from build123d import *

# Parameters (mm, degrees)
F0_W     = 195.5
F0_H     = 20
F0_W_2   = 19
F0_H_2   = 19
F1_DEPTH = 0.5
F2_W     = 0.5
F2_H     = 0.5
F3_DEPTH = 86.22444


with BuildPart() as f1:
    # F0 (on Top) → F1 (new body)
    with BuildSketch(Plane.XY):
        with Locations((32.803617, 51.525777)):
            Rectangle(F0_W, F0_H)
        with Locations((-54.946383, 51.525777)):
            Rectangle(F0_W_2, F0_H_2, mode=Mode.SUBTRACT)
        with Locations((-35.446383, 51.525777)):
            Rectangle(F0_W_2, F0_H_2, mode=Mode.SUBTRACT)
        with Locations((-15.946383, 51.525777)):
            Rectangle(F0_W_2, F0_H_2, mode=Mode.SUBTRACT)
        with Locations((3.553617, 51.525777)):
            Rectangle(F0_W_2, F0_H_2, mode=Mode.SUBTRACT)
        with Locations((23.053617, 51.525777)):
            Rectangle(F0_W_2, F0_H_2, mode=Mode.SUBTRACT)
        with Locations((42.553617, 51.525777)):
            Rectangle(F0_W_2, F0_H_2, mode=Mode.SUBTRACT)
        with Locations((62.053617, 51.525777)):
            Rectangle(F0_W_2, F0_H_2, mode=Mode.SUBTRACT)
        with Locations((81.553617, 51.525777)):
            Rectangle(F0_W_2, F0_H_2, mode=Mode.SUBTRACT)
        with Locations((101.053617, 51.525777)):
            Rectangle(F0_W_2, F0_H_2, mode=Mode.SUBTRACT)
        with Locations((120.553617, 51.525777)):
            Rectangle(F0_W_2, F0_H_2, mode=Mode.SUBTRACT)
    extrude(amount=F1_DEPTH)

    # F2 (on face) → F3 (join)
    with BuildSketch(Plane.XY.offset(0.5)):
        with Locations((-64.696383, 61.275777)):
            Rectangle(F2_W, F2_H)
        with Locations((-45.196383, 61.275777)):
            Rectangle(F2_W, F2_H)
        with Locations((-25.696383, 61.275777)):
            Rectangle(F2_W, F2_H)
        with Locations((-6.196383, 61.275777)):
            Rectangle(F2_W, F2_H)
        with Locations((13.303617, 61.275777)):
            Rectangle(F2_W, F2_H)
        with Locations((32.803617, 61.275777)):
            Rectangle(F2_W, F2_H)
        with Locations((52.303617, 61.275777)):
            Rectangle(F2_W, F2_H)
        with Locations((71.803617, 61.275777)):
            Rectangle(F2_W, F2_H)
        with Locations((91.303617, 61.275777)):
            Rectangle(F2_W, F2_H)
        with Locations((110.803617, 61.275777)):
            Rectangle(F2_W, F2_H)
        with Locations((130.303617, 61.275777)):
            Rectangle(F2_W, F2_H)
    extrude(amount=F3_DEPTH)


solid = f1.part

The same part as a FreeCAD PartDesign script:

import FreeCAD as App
import Part
import Sketcher
Q = App.Units.Quantity

doc = App.newDocument("Part")
params = doc.addObject("Spreadsheet::Sheet", "Params")
for row, (alias, value) in enumerate([
    ("sketch1_width", "19 mm"),
    ("sketch1_height", "20 mm"),
    ("sketch1_width2", "195.5 mm"),
    ("pad1_length", "0.5 mm"),
    ("sketch2_width", "0.5 mm"),
    ("pad2_length", "86.22444 mm"),
], start=1):
    params.set(f"A{row}", alias)
    params.set(f"B{row}", "=" + value)
    params.setAlias(f"B{row}", alias)

body = doc.addObject("PartDesign::Body", "Body")

sketch1 = doc.addObject("Sketcher::SketchObject", "Sketch")
body.addObject(sketch1)
sketch1.AttachmentSupport = (doc.XY_Plane, [""])
sketch1.MapMode = "FlatFace"
sketch1.addGeometry([
    Part.LineSegment(App.Vector(-64.946383, 61.525777, 0), App.Vector(-64.946383, 41.525777, 0)),
    Part.LineSegment(App.Vector(-64.946383, 41.525777, 0), App.Vector(130.553617, 41.525777, 0)),
    Part.LineSegment(App.Vector(130.553617, 41.525777, 0), App.Vector(130.553617, 61.525777, 0)),
    Part.LineSegment(App.Vector(130.553617, 61.525777, 0), App.Vector(-64.946383, 61.525777, 0)),
    Part.LineSegment(App.Vector(-45.446383, 42.025777, 0), App.Vector(-64.446383, 42.025777, 0)),
    Part.LineSegment(App.Vector(-64.446383, 42.025777, 0), App.Vector(-64.446383, 61.025777, 0)),
    Part.LineSegment(App.Vector(-64.446383, 61.025777, 0), App.Vector(-45.446383, 61.025777, 0)),
    Part.LineSegment(App.Vector(-45.446383, 61.025777, 0), App.Vector(-45.446383, 42.025777, 0)),
    Part.LineSegment(App.Vector(-25.946383, 42.025777, 0), App.Vector(-44.946383, 42.025777, 0)),
    Part.LineSegment(App.Vector(-44.946383, 42.025777, 0), App.Vector(-44.946383, 61.025777, 0)),
    Part.LineSegment(App.Vector(-44.946383, 61.025777, 0), App.Vector(-25.946383, 61.025777, 0)),
    Part.LineSegment(App.Vector(-25.946383, 61.025777, 0), App.Vector(-25.946383, 42.025777, 0)),
    Part.LineSegment(App.Vector(-6.446383, 42.025777, 0), App.Vector(-25.446383, 42.025777, 0)),
    Part.LineSegment(App.Vector(-25.446383, 42.025777, 0), App.Vector(-25.446383, 61.025777, 0)),
    Part.LineSegment(App.Vector(-25.446383, 61.025777, 0), App.Vector(-6.446383, 61.025777, 0)),
    Part.LineSegment(App.Vector(-6.446383, 61.025777, 0), App.Vector(-6.446383, 42.025777, 0)),
    Part.LineSegment(App.Vector(13.053617, 42.025777, 0), App.Vector(-5.946383, 42.025777, 0)),
    Part.LineSegment(App.Vector(-5.946383, 42.025777, 0), App.Vector(-5.946383, 61.025777, 0)),
    Part.LineSegment(App.Vector(-5.946383, 61.025777, 0), App.Vector(13.053617, 61.025777, 0)),
    Part.LineSegment(App.Vector(13.053617, 61.025777, 0), App.Vector(13.053617, 42.025777, 0)),
    Part.LineSegment(App.Vector(32.553617, 42.025777, 0), App.Vector(13.553617, 42.025777, 0)),
    Part.LineSegment(App.Vector(13.553617, 42.025777, 0), App.Vector(13.553617, 61.025777, 0)),
    Part.LineSegment(App.Vector(13.553617, 61.025777, 0), App.Vector(32.553617, 61.025777, 0)),
    Part.LineSegment(App.Vector(32.553617, 61.025777, 0), App.Vector(32.553617, 42.025777, 0)),
    Part.LineSegment(App.Vector(52.053617, 42.025777, 0), App.Vector(33.053617, 42.025777, 0)),
    Part.LineSegment(App.Vector(33.053617, 42.025777, 0), App.Vector(33.053617, 61.025777, 0)),
    Part.LineSegment(App.Vector(33.053617, 61.025777, 0), App.Vector(52.053617, 61.025777, 0)),
    Part.LineSegment(App.Vector(52.053617, 61.025777, 0), App.Vector(52.053617, 42.025777, 0)),
    Part.LineSegment(App.Vector(71.553617, 42.025777, 0), App.Vector(52.553617, 42.025777, 0)),
    Part.LineSegment(App.Vector(52.553617, 42.025777, 0), App.Vector(52.553617, 61.025777, 0)),
    Part.LineSegment(App.Vector(52.553617, 61.025777, 0), App.Vector(71.553617, 61.025777, 0)),
    Part.LineSegment(App.Vector(71.553617, 61.025777, 0), App.Vector(71.553617, 42.025777, 0)),
    Part.LineSegment(App.Vector(91.053617, 42.025777, 0), App.Vector(72.053617, 42.025777, 0)),
    Part.LineSegment(App.Vector(72.053617, 42.025777, 0), App.Vector(72.053617, 61.025777, 0)),
    Part.LineSegment(App.Vector(72.053617, 61.025777, 0), App.Vector(91.053617, 61.025777, 0)),
    Part.LineSegment(App.Vector(91.053617, 61.025777, 0), App.Vector(91.053617, 42.025777, 0)),
    Part.LineSegment(App.Vector(110.553617, 42.025777, 0), App.Vector(91.553617, 42.025777, 0)),
    Part.LineSegment(App.Vector(91.553617, 42.025777, 0), App.Vector(91.553617, 61.025777, 0)),
    Part.LineSegment(App.Vector(91.553617, 61.025777, 0), App.Vector(110.553617, 61.025777, 0)),
    Part.LineSegment(App.Vector(110.553617, 61.025777, 0), App.Vector(110.553617, 42.025777, 0)),
    Part.LineSegment(App.Vector(130.053617, 42.025777, 0), App.Vector(111.053617, 42.025777, 0)),
    Part.LineSegment(App.Vector(111.053617, 42.025777, 0), App.Vector(111.053617, 61.025777, 0)),
    Part.LineSegment(App.Vector(111.053617, 61.025777, 0), App.Vector(130.053617, 61.025777, 0)),
    Part.LineSegment(App.Vector(130.053617, 61.025777, 0), App.Vector(130.053617, 42.025777, 0)),
], False)
sketch1.addConstraint([
    Sketcher.Constraint("Coincident", 0, 2, 1, 1),
    Sketcher.Constraint("Coincident", 1, 2, 2, 1),
    Sketcher.Constraint("Coincident", 2, 2, 3, 1),
    Sketcher.Constraint("Coincident", 3, 2, 0, 1),
    Sketcher.Constraint("Coincident", 4, 2, 5, 1),
    Sketcher.Constraint("Coincident", 5, 2, 6, 1),
    Sketcher.Constraint("Coincident", 6, 2, 7, 1),
    Sketcher.Constraint("Coincident", 7, 2, 4, 1),
    Sketcher.Constraint("Coincident", 8, 2, 9, 1),
    Sketcher.Constraint("Coincident", 9, 2, 10, 1),
    Sketcher.Constraint("Coincident", 10, 2, 11, 1),
    Sketcher.Constraint("Coincident", 11, 2, 8, 1),
    Sketcher.Constraint("Coincident", 12, 2, 13, 1),
    Sketcher.Constraint("Coincident", 13, 2, 14, 1),
    Sketcher.Constraint("Coincident", 14, 2, 15, 1),
    Sketcher.Constraint("Coincident", 15, 2, 12, 1),
    Sketcher.Constraint("Coincident", 16, 2, 17, 1),
    Sketcher.Constraint("Coincident", 17, 2, 18, 1),
    Sketcher.Constraint("Coincident", 18, 2, 19, 1),
    Sketcher.Constraint("Coincident", 19, 2, 16, 1),
    Sketcher.Constraint("Coincident", 20, 2, 21, 1),
    Sketcher.Constraint("Coincident", 21, 2, 22, 1),
    Sketcher.Constraint("Coincident", 22, 2, 23, 1),
    Sketcher.Constraint("Coincident", 23, 2, 20, 1),
    Sketcher.Constraint("Coincident", 24, 2, 25, 1),
    Sketcher.Constraint("Coincident", 25, 2, 26, 1),
    Sketcher.Constraint("Coincident", 26, 2, 27, 1),
    Sketcher.Constraint("Coincident", 27, 2, 24, 1),
    Sketcher.Constraint("Coincident", 28, 2, 29, 1),
    Sketcher.Constraint("Coincident", 29, 2, 30, 1),
    Sketcher.Constraint("Coincident", 30, 2, 31, 1),
    Sketcher.Constraint("Coincident", 31, 2, 28, 1),
    Sketcher.Constraint("Coincident", 32, 2, 33, 1),
    Sketcher.Constraint("Coincident", 33, 2, 34, 1),
    Sketcher.Constraint("Coincident", 34, 2, 35, 1),
    Sketcher.Constraint("Coincident", 35, 2, 32, 1),
    Sketcher.Constraint("Coincident", 36, 2, 37, 1),
    Sketcher.Constraint("Coincident", 37, 2, 38, 1),
    Sketcher.Constraint("Coincident", 38, 2, 39, 1),
    Sketcher.Constraint("Coincident", 39, 2, 36, 1),
    Sketcher.Constraint("Coincident", 40, 2, 41, 1),
    Sketcher.Constraint("Coincident", 41, 2, 42, 1),
    Sketcher.Constraint("Coincident", 42, 2, 43, 1),
    Sketcher.Constraint("Coincident", 43, 2, 40, 1),
    Sketcher.Constraint("Vertical", 0),
    Sketcher.Constraint("Horizontal", 1),
    Sketcher.Constraint("Vertical", 2),
    Sketcher.Constraint("Horizontal", 3),
    Sketcher.Constraint("Horizontal", 4),
    Sketcher.Constraint("Vertical", 5),
    Sketcher.Constraint("Horizontal", 6),
    Sketcher.Constraint("Vertical", 7),
    Sketcher.Constraint("Horizontal", 8),
    Sketcher.Constraint("Vertical", 9),
    Sketcher.Constraint("Horizontal", 10),
    Sketcher.Constraint("Vertical", 11),
    Sketcher.Constraint("Horizontal", 12),
    Sketcher.Constraint("Vertical", 13),
    Sketcher.Constraint("Horizontal", 14),
    Sketcher.Constraint("Vertical", 15),
    Sketcher.Constraint("Horizontal", 16),
    Sketcher.Constraint("Vertical", 17),
    Sketcher.Constraint("Horizontal", 18),
    Sketcher.Constraint("Vertical", 19),
    Sketcher.Constraint("Horizontal", 20),
    Sketcher.Constraint("Vertical", 21),
    Sketcher.Constraint("Horizontal", 22),
    Sketcher.Constraint("Vertical", 23),
    Sketcher.Constraint("Horizontal", 24),
    Sketcher.Constraint("Vertical", 25),
    Sketcher.Constraint("Horizontal", 26),
    Sketcher.Constraint("Vertical", 27),
    Sketcher.Constraint("Horizontal", 28),
    Sketcher.Constraint("Vertical", 29),
    Sketcher.Constraint("Horizontal", 30),
    Sketcher.Constraint("Vertical", 31),
    Sketcher.Constraint("Horizontal", 32),
    Sketcher.Constraint("Vertical", 33),
    Sketcher.Constraint("Horizontal", 34),
    Sketcher.Constraint("Vertical", 35),
    Sketcher.Constraint("Horizontal", 36),
    Sketcher.Constraint("Vertical", 37),
    Sketcher.Constraint("Horizontal", 38),
    Sketcher.Constraint("Vertical", 39),
    Sketcher.Constraint("Horizontal", 40),
    Sketcher.Constraint("Vertical", 41),
    Sketcher.Constraint("Horizontal", 42),
    Sketcher.Constraint("Vertical", 43),
    Sketcher.Constraint("Horizontal", 7, 2, 8, 2),
    Sketcher.Constraint("Horizontal", 6, 2, 9, 2),
    Sketcher.Constraint("Horizontal", 11, 2, 12, 2),
    Sketcher.Constraint("Horizontal", 10, 2, 13, 2),
    Sketcher.Constraint("Horizontal", 15, 2, 16, 2),
    Sketcher.Constraint("Horizontal", 14, 2, 17, 2),
    Sketcher.Constraint("Horizontal", 19, 2, 20, 2),
    Sketcher.Constraint("Horizontal", 18, 2, 21, 2),
    Sketcher.Constraint("Horizontal", 23, 2, 24, 2),
    Sketcher.Constraint("Horizontal", 22, 2, 25, 2),
    Sketcher.Constraint("Horizontal", 27, 2, 28, 2),
    Sketcher.Constraint("Horizontal", 26, 2, 29, 2),
    Sketcher.Constraint("Horizontal", 31, 2, 32, 2),
    Sketcher.Constraint("Horizontal", 30, 2, 33, 2),
    Sketcher.Constraint("Horizontal", 35, 2, 36, 2),
    Sketcher.Constraint("Horizontal", 34, 2, 37, 2),
    Sketcher.Constraint("Horizontal", 39, 2, 40, 2),
    Sketcher.Constraint("Horizontal", 38, 2, 41, 2),
    Sketcher.Constraint("Equal", 6, 8),
    Sketcher.Constraint("Equal", 10, 12),
    Sketcher.Constraint("Equal", 14, 16),
    Sketcher.Constraint("Equal", 18, 20),
    Sketcher.Constraint("Equal", 22, 24),
    Sketcher.Constraint("Equal", 26, 28),
    Sketcher.Constraint("Equal", 30, 32),
    Sketcher.Constraint("Equal", 34, 36),
    Sketcher.Constraint("Equal", 38, 40),
    Sketcher.Constraint("Equal", 42, 5),
    Sketcher.Constraint("DistanceX", 4, 2, 4, 1, Q("19 mm")),
    Sketcher.Constraint("DistanceY", 0, 2, 0, 1, Q("20 mm")),
    Sketcher.Constraint("DistanceX", 1, 1, 1, 2, Q("195.5 mm")),
    Sketcher.Constraint("DistanceX", 4, 2, 1, 2, Q("195 mm")),
    Sketcher.Constraint("DistanceX", 0, 2, 8, 2, Q("20 mm")),
    Sketcher.Constraint("DistanceX", 7, 2, 12, 2, Q("20 mm")),
    Sketcher.Constraint("DistanceX", 11, 2, 16, 2, Q("20 mm")),
    Sketcher.Constraint("DistanceX", 15, 2, 20, 2, Q("20 mm")),
    Sketcher.Constraint("DistanceX", 19, 2, 24, 2, Q("20 mm")),
    Sketcher.Constraint("DistanceX", 23, 2, 28, 2, Q("20 mm")),
    Sketcher.Constraint("DistanceX", 27, 2, 32, 2, Q("20 mm")),
    Sketcher.Constraint("DistanceX", 31, 2, 36, 2, Q("20 mm")),
    Sketcher.Constraint("DistanceX", 35, 2, 40, 2, Q("20 mm")),
    Sketcher.Constraint("DistanceY", 0, 2, 4, 2, Q("0.5 mm")),
    Sketcher.Constraint("DistanceX", 0, 2, -1, 1, Q("64.946383 mm")),
    Sketcher.Constraint("DistanceY", -1, 1, 0, 2, Q("41.525777 mm")),
])
sketch1.setExpression("Constraints[116]", "Params.sketch1_width")
sketch1.setExpression("Constraints[117]", "Params.sketch1_height")
sketch1.setExpression("Constraints[118]", "Params.sketch1_width2")
pad1 = doc.addObject("PartDesign::Pad", "Pad")
body.addObject(pad1)
pad1.Profile = sketch1
pad1.setExpression("Length", "Params.pad1_length")

sketch2 = doc.addObject("Sketcher::SketchObject", "Sketch001")
body.addObject(sketch2)
sketch2.AttachmentSupport = (doc.XY_Plane, [""])
sketch2.MapMode = "FlatFace"
sketch2.AttachmentOffset = App.Placement(App.Vector(0, 0, 0.5), App.Rotation())
sketch2.addGeometry([
    Part.LineSegment(App.Vector(-64.946383, 61.525777, 0), App.Vector(-64.946383, 61.025777, 0)),
    Part.LineSegment(App.Vector(-64.946383, 61.025777, 0), App.Vector(-64.446383, 61.025777, 0)),
    Part.LineSegment(App.Vector(-64.446383, 61.025777, 0), App.Vector(-64.446383, 61.525777, 0)),
    Part.LineSegment(App.Vector(-64.446383, 61.525777, 0), App.Vector(-64.946383, 61.525777, 0)),
    Part.LineSegment(App.Vector(-45.446383, 61.525777, 0), App.Vector(-45.446383, 61.025777, 0)),
    Part.LineSegment(App.Vector(-45.446383, 61.025777, 0), App.Vector(-44.946383, 61.025777, 0)),
    Part.LineSegment(App.Vector(-44.946383, 61.025777, 0), App.Vector(-44.946383, 61.525777, 0)),
    Part.LineSegment(App.Vector(-44.946383, 61.525777, 0), App.Vector(-45.446383, 61.525777, 0)),
    Part.LineSegment(App.Vector(-25.946383, 61.525777, 0), App.Vector(-25.946383, 61.025777, 0)),
    Part.LineSegment(App.Vector(-25.946383, 61.025777, 0), App.Vector(-25.446383, 61.025777, 0)),
    Part.LineSegment(App.Vector(-25.446383, 61.025777, 0), App.Vector(-25.446383, 61.525777, 0)),
    Part.LineSegment(App.Vector(-25.446383, 61.525777, 0), App.Vector(-25.946383, 61.525777, 0)),
    Part.LineSegment(App.Vector(-6.446383, 61.525777, 0), App.Vector(-6.446383, 61.025777, 0)),
    Part.LineSegment(App.Vector(-6.446383, 61.025777, 0), App.Vector(-5.946383, 61.025777, 0)),
    Part.LineSegment(App.Vector(-5.946383, 61.025777, 0), App.Vector(-5.946383, 61.525777, 0)),
    Part.LineSegment(App.Vector(-5.946383, 61.525777, 0), App.Vector(-6.446383, 61.525777, 0)),
    Part.LineSegment(App.Vector(13.053617, 61.525777, 0), App.Vector(13.053617, 61.025777, 0)),
    Part.LineSegment(App.Vector(13.053617, 61.025777, 0), App.Vector(13.553617, 61.025777, 0)),
    Part.LineSegment(App.Vector(13.553617, 61.025777, 0), App.Vector(13.553617, 61.525777, 0)),
    Part.LineSegment(App.Vector(13.553617, 61.525777, 0), App.Vector(13.053617, 61.525777, 0)),
    Part.LineSegment(App.Vector(32.553617, 61.525777, 0), App.Vector(32.553617, 61.025777, 0)),
    Part.LineSegment(App.Vector(32.553617, 61.025777, 0), App.Vector(33.053617, 61.025777, 0)),
    Part.LineSegment(App.Vector(33.053617, 61.025777, 0), App.Vector(33.053617, 61.525777, 0)),
    Part.LineSegment(App.Vector(33.053617, 61.525777, 0), App.Vector(32.553617, 61.525777, 0)),
    Part.LineSegment(App.Vector(52.053617, 61.525777, 0), App.Vector(52.053617, 61.025777, 0)),
    Part.LineSegment(App.Vector(52.053617, 61.025777, 0), App.Vector(52.553617, 61.025777, 0)),
    Part.LineSegment(App.Vector(52.553617, 61.025777, 0), App.Vector(52.553617, 61.525777, 0)),
    Part.LineSegment(App.Vector(52.553617, 61.525777, 0), App.Vector(52.053617, 61.525777, 0)),
    Part.LineSegment(App.Vector(71.553617, 61.525777, 0), App.Vector(71.553617, 61.025777, 0)),
    Part.LineSegment(App.Vector(71.553617, 61.025777, 0), App.Vector(72.053617, 61.025777, 0)),
    Part.LineSegment(App.Vector(72.053617, 61.025777, 0), App.Vector(72.053617, 61.525777, 0)),
    Part.LineSegment(App.Vector(72.053617, 61.525777, 0), App.Vector(71.553617, 61.525777, 0)),
    Part.LineSegment(App.Vector(91.053617, 61.525777, 0), App.Vector(91.053617, 61.025777, 0)),
    Part.LineSegment(App.Vector(91.053617, 61.025777, 0), App.Vector(91.553617, 61.025777, 0)),
    Part.LineSegment(App.Vector(91.553617, 61.025777, 0), App.Vector(91.553617, 61.525777, 0)),
    Part.LineSegment(App.Vector(91.553617, 61.525777, 0), App.Vector(91.053617, 61.525777, 0)),
    Part.LineSegment(App.Vector(110.553617, 61.525777, 0), App.Vector(110.553617, 61.025777, 0)),
    Part.LineSegment(App.Vector(110.553617, 61.025777, 0), App.Vector(111.053617, 61.025777, 0)),
    Part.LineSegment(App.Vector(111.053617, 61.025777, 0), App.Vector(111.053617, 61.525777, 0)),
    Part.LineSegment(App.Vector(111.053617, 61.525777, 0), App.Vector(110.553617, 61.525777, 0)),
    Part.LineSegment(App.Vector(130.053617, 61.525777, 0), App.Vector(130.053617, 61.025777, 0)),
    Part.LineSegment(App.Vector(130.053617, 61.025777, 0), App.Vector(130.553617, 61.025777, 0)),
    Part.LineSegment(App.Vector(130.553617, 61.025777, 0), App.Vector(130.553617, 61.525777, 0)),
    Part.LineSegment(App.Vector(130.553617, 61.525777, 0), App.Vector(130.053617, 61.525777, 0)),
], False)
sketch2.addConstraint([
    Sketcher.Constraint("Coincident", 0, 2, 1, 1),
    Sketcher.Constraint("Coincident", 1, 2, 2, 1),
    Sketcher.Constraint("Coincident", 2, 2, 3, 1),
    Sketcher.Constraint("Coincident", 3, 2, 0, 1),
    Sketcher.Constraint("Coincident", 4, 2, 5, 1),
    Sketcher.Constraint("Coincident", 5, 2, 6, 1),
    Sketcher.Constraint("Coincident", 6, 2, 7, 1),
    Sketcher.Constraint("Coincident", 7, 2, 4, 1),
    Sketcher.Constraint("Coincident", 8, 2, 9, 1),
    Sketcher.Constraint("Coincident", 9, 2, 10, 1),
    Sketcher.Constraint("Coincident", 10, 2, 11, 1),
    Sketcher.Constraint("Coincident", 11, 2, 8, 1),
    Sketcher.Constraint("Coincident", 12, 2, 13, 1),
    Sketcher.Constraint("Coincident", 13, 2, 14, 1),
    Sketcher.Constraint("Coincident", 14, 2, 15, 1),
    Sketcher.Constraint("Coincident", 15, 2, 12, 1),
    Sketcher.Constraint("Coincident", 16, 2, 17, 1),
    Sketcher.Constraint("Coincident", 17, 2, 18, 1),
    Sketcher.Constraint("Coincident", 18, 2, 19, 1),
    Sketcher.Constraint("Coincident", 19, 2, 16, 1),
    Sketcher.Constraint("Coincident", 20, 2, 21, 1),
    Sketcher.Constraint("Coincident", 21, 2, 22, 1),
    Sketcher.Constraint("Coincident", 22, 2, 23, 1),
    Sketcher.Constraint("Coincident", 23, 2, 20, 1),
    Sketcher.Constraint("Coincident", 24, 2, 25, 1),
    Sketcher.Constraint("Coincident", 25, 2, 26, 1),
    Sketcher.Constraint("Coincident", 26, 2, 27, 1),
    Sketcher.Constraint("Coincident", 27, 2, 24, 1),
    Sketcher.Constraint("Coincident", 28, 2, 29, 1),
    Sketcher.Constraint("Coincident", 29, 2, 30, 1),
    Sketcher.Constraint("Coincident", 30, 2, 31, 1),
    Sketcher.Constraint("Coincident", 31, 2, 28, 1),
    Sketcher.Constraint("Coincident", 32, 2, 33, 1),
    Sketcher.Constraint("Coincident", 33, 2, 34, 1),
    Sketcher.Constraint("Coincident", 34, 2, 35, 1),
    Sketcher.Constraint("Coincident", 35, 2, 32, 1),
    Sketcher.Constraint("Coincident", 36, 2, 37, 1),
    Sketcher.Constraint("Coincident", 37, 2, 38, 1),
    Sketcher.Constraint("Coincident", 38, 2, 39, 1),
    Sketcher.Constraint("Coincident", 39, 2, 36, 1),
    Sketcher.Constraint("Coincident", 40, 2, 41, 1),
    Sketcher.Constraint("Coincident", 41, 2, 42, 1),
    Sketcher.Constraint("Coincident", 42, 2, 43, 1),
    Sketcher.Constraint("Coincident", 43, 2, 40, 1),
    Sketcher.Constraint("Vertical", 0),
    Sketcher.Constraint("Horizontal", 1),
    Sketcher.Constraint("Vertical", 2),
    Sketcher.Constraint("Horizontal", 3),
    Sketcher.Constraint("Vertical", 4),
    Sketcher.Constraint("Horizontal", 5),
    Sketcher.Constraint("Vertical", 6),
    Sketcher.Constraint("Horizontal", 7),
    Sketcher.Constraint("Vertical", 8),
    Sketcher.Constraint("Horizontal", 9),
    Sketcher.Constraint("Vertical", 10),
    Sketcher.Constraint("Horizontal", 11),
    Sketcher.Constraint("Vertical", 12),
    Sketcher.Constraint("Horizontal", 13),
    Sketcher.Constraint("Vertical", 14),
    Sketcher.Constraint("Horizontal", 15),
    Sketcher.Constraint("Vertical", 16),
    Sketcher.Constraint("Horizontal", 17),
    Sketcher.Constraint("Vertical", 18),
    Sketcher.Constraint("Horizontal", 19),
    Sketcher.Constraint("Vertical", 20),
    Sketcher.Constraint("Horizontal", 21),
    Sketcher.Constraint("Vertical", 22),
    Sketcher.Constraint("Horizontal", 23),
    Sketcher.Constraint("Vertical", 24),
    Sketcher.Constraint("Horizontal", 25),
    Sketcher.Constraint("Vertical", 26),
    Sketcher.Constraint("Horizontal", 27),
    Sketcher.Constraint("Vertical", 28),
    Sketcher.Constraint("Horizontal", 29),
    Sketcher.Constraint("Vertical", 30),
    Sketcher.Constraint("Horizontal", 31),
    Sketcher.Constraint("Vertical", 32),
    Sketcher.Constraint("Horizontal", 33),
    Sketcher.Constraint("Vertical", 34),
    Sketcher.Constraint("Horizontal", 35),
    Sketcher.Constraint("Vertical", 36),
    Sketcher.Constraint("Horizontal", 37),
    Sketcher.Constraint("Vertical", 38),
    Sketcher.Constraint("Horizontal", 39),
    Sketcher.Constraint("Vertical", 40),
    Sketcher.Constraint("Horizontal", 41),
    Sketcher.Constraint("Vertical", 42),
    Sketcher.Constraint("Horizontal", 43),
    Sketcher.Constraint("Horizontal", 1, 2, 4, 2),
    Sketcher.Constraint("Horizontal", 3, 2, 6, 2),
    Sketcher.Constraint("Horizontal", 5, 2, 8, 2),
    Sketcher.Constraint("Horizontal", 7, 2, 10, 2),
    Sketcher.Constraint("Horizontal", 9, 2, 12, 2),
    Sketcher.Constraint("Horizontal", 11, 2, 14, 2),
    Sketcher.Constraint("Horizontal", 13, 2, 16, 2),
    Sketcher.Constraint("Horizontal", 15, 2, 18, 2),
    Sketcher.Constraint("Horizontal", 17, 2, 20, 2),
    Sketcher.Constraint("Horizontal", 19, 2, 22, 2),
    Sketcher.Constraint("Horizontal", 21, 2, 24, 2),
    Sketcher.Constraint("Horizontal", 23, 2, 26, 2),
    Sketcher.Constraint("Horizontal", 25, 2, 28, 2),
    Sketcher.Constraint("Horizontal", 27, 2, 30, 2),
    Sketcher.Constraint("Horizontal", 29, 2, 32, 2),
    Sketcher.Constraint("Horizontal", 31, 2, 34, 2),
    Sketcher.Constraint("Horizontal", 33, 2, 36, 2),
    Sketcher.Constraint("Horizontal", 35, 2, 38, 2),
    Sketcher.Constraint("Horizontal", 37, 2, 40, 2),
    Sketcher.Constraint("Horizontal", 39, 2, 42, 2),
    Sketcher.Constraint("Equal", 3, 5),
    Sketcher.Constraint("Equal", 7, 9),
    Sketcher.Constraint("Equal", 11, 13),
    Sketcher.Constraint("Equal", 15, 17),
    Sketcher.Constraint("Equal", 19, 21),
    Sketcher.Constraint("Equal", 23, 25),
    Sketcher.Constraint("Equal", 27, 29),
    Sketcher.Constraint("Equal", 31, 33),
    Sketcher.Constraint("Equal", 35, 37),
    Sketcher.Constraint("Equal", 39, 41),
    Sketcher.Constraint("Equal", 43, 0),
    Sketcher.Constraint("DistanceX", 1, 1, 1, 2, Q("0.5 mm")),
    Sketcher.Constraint("DistanceX", 1, 2, 4, 2, Q("19 mm")),
    Sketcher.Constraint("DistanceX", 5, 2, 8, 2, Q("19 mm")),
    Sketcher.Constraint("DistanceX", 9, 2, 12, 2, Q("19 mm")),
    Sketcher.Constraint("DistanceX", 13, 2, 16, 2, Q("19 mm")),
    Sketcher.Constraint("DistanceX", 17, 2, 20, 2, Q("19 mm")),
    Sketcher.Constraint("DistanceX", 21, 2, 24, 2, Q("19 mm")),
    Sketcher.Constraint("DistanceX", 25, 2, 28, 2, Q("19 mm")),
    Sketcher.Constraint("DistanceX", 29, 2, 32, 2, Q("19 mm")),
    Sketcher.Constraint("DistanceX", 33, 2, 36, 2, Q("19 mm")),
    Sketcher.Constraint("DistanceX", 37, 2, 40, 2, Q("19 mm")),
    Sketcher.Constraint("DistanceX", 0, 2, -1, 1, Q("64.946383 mm")),
    Sketcher.Constraint("DistanceY", -1, 1, 0, 2, Q("61.025777 mm")),
])
sketch2.setExpression("Constraints[119]", "Params.sketch2_width")
pad2 = doc.addObject("PartDesign::Pad", "Pad001")
body.addObject(pad2)
pad2.Profile = sketch2
pad2.setExpression("Length", "Params.pad2_length")

doc.recompute()
